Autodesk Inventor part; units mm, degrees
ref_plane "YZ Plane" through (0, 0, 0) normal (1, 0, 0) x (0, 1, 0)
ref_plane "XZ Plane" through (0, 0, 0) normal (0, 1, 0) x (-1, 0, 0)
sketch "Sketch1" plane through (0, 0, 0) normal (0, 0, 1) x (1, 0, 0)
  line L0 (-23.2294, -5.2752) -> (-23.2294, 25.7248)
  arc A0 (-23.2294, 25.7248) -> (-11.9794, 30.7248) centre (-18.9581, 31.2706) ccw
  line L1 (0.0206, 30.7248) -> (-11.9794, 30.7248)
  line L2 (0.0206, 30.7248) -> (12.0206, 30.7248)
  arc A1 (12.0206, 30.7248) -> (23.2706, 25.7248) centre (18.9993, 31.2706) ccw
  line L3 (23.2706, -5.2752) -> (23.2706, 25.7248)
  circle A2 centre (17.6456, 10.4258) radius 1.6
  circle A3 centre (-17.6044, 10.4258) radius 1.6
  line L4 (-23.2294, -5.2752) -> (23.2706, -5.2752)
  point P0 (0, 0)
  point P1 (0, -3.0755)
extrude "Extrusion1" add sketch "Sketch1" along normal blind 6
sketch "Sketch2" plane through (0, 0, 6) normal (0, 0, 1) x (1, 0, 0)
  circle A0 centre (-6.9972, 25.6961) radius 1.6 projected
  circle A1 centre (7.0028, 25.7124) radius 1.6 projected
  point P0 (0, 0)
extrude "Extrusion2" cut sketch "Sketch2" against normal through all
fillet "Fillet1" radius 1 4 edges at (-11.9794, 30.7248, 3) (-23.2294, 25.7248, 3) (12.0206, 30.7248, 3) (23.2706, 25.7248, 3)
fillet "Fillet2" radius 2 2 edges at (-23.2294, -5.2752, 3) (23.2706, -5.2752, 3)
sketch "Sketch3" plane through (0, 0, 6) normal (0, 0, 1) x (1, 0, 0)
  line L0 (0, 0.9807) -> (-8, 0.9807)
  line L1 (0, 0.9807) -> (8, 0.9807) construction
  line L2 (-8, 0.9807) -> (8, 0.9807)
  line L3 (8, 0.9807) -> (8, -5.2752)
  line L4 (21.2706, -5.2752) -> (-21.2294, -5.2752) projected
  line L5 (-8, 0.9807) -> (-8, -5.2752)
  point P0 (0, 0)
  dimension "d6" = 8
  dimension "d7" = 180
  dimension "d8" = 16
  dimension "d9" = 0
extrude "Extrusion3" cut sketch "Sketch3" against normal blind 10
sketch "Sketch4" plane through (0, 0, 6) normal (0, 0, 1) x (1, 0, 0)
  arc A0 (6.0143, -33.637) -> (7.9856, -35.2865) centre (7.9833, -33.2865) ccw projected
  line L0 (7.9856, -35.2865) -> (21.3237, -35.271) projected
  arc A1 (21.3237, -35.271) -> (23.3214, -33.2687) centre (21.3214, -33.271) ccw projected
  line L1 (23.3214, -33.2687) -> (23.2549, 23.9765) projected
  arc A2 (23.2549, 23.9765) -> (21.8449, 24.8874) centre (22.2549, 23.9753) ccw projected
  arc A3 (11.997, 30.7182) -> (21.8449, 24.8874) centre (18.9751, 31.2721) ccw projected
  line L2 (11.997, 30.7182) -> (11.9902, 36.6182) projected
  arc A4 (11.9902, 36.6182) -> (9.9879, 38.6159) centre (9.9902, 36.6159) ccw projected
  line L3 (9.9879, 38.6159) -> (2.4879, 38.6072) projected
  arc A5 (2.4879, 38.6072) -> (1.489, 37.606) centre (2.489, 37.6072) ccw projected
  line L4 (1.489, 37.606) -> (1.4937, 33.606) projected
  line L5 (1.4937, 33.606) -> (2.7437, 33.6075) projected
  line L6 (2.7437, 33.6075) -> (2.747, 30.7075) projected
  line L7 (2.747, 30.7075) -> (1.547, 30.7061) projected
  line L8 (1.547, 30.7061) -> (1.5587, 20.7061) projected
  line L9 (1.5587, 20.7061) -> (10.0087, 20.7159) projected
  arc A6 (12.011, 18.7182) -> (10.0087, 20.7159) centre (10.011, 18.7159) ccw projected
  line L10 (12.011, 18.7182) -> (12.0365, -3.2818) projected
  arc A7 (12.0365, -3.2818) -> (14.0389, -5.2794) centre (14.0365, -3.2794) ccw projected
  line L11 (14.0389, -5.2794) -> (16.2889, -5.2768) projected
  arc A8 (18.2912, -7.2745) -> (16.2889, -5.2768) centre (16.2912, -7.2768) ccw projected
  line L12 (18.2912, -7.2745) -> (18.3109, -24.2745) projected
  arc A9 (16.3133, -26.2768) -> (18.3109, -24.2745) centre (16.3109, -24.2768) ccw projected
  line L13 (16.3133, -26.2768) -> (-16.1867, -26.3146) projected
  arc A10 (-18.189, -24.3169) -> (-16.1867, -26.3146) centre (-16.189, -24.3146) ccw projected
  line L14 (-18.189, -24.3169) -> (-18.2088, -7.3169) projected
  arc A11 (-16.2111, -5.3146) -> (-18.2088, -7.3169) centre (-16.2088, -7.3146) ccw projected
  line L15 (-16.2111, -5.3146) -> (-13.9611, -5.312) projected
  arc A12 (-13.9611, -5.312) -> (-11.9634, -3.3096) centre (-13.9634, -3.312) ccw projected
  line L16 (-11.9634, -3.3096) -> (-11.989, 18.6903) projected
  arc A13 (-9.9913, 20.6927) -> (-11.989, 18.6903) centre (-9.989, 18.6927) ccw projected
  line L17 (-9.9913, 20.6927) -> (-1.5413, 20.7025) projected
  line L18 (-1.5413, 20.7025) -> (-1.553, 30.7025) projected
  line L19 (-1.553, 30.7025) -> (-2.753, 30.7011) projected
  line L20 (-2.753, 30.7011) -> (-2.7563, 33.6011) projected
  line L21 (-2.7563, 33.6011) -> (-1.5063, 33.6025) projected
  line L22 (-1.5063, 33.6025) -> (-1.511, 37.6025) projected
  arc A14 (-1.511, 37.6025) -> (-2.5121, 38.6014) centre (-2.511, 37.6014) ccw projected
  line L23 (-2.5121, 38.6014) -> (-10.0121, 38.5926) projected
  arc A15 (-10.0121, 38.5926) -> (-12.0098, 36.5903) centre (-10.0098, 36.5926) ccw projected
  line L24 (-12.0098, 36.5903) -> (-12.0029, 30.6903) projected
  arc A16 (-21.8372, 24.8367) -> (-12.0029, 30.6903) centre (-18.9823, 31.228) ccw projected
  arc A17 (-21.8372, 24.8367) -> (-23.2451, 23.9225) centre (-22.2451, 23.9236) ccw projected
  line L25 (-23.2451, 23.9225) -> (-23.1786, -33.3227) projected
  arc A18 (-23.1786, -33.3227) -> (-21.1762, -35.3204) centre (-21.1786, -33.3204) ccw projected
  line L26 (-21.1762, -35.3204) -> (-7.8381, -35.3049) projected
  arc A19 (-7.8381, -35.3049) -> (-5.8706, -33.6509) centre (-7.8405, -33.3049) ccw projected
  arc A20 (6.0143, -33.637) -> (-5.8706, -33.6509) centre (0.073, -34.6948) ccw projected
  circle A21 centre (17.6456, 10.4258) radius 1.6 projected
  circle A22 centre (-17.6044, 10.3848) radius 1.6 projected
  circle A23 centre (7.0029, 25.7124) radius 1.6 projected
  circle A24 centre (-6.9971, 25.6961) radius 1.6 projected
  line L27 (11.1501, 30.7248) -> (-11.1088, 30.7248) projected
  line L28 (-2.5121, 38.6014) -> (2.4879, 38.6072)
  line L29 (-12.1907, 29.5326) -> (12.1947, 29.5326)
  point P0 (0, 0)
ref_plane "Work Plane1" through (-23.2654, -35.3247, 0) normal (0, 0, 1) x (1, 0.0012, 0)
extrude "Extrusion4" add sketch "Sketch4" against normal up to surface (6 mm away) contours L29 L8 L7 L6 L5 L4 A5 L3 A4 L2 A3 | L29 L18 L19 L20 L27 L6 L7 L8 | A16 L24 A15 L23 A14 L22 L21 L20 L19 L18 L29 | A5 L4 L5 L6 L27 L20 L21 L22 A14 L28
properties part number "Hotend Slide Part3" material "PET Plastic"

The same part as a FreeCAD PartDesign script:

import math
import FreeCAD as App
import Part
import Sketcher

V = App.Vector
Q = App.Units.Quantity


def edges_at(feature, points):
    """Names of the edges that pass closest to the given points."""
    edges = feature.Shape.Edges
    near = lambda p: min(range(len(edges)), key=lambda i: edges[i].distToShape(Part.Vertex(*p))[0])
    return sorted({f"Edge{near(p) + 1}" for p in points})

doc = App.newDocument("Part")
params = doc.addObject("Spreadsheet::Sheet", "Params")
for row, (alias, value) in enumerate([
    ("sketch1_radius", "7 mm"),
    ("sketch1_diameter", "3.2 mm"),
    ("sketch1_width", "24 mm"),
    ("sketch1_height", "31 mm"),
    ("sketch1_width2", "46.5 mm"),
    ("pad1_length", "6 mm"),
    ("sketch2_diameter", "3.2 mm"),
    ("fillet_radius", "1 mm"),
    ("fillet2_radius", "2 mm"),
    ("sketch3_width", "16 mm"),
    ("pocket2_length", "10 mm"),
    ("sketch4_radius", "7 mm"),
    ("sketch4_radius2", "2 mm"),
    ("sketch4_length", "5.9 mm"),
    ("sketch4_length2", "12.5 mm"),
    ("pad2_length", "6 mm"),
], start=1):
    params.set(f"A{row}", alias)
    params.set(f"B{row}", "=" + value)
    params.setAlias(f"B{row}", alias)

body = doc.addObject("PartDesign::Body", "Body")

sketch1 = doc.addObject("Sketcher::SketchObject", "Sketch")
body.addObject(sketch1)
sketch1.AttachmentSupport = (doc.XY_Plane, [""])
sketch1.MapMode = "FlatFace"
sketch1.addGeometry([
    Part.LineSegment(V(-23.2, 25.7, 0), V(-23.2, -5.3, 0)),
    Part.LineSegment(V(-23.2, -5.3, 0), V(23.3, -5.3, 0)),
    Part.LineSegment(V(23.3, -5.3, 0), V(23.3, 25.7, 0)),
    Part.ArcOfCircle(Part.Circle(V(19, 31.3, 0), V(0, 0, 1), 7), math.radians(-176), math.radians(-52)),
    Part.LineSegment(V(12, 30.7, 0), V(-12, 30.7, 0)),
    Part.ArcOfCircle(Part.Circle(V(-19, 31.3, 0), V(0, 0, 1), 7), math.radians(-128), math.radians(-4)),
    Part.Circle(V(-17.6, 10.4, 0), V(0, 0, 1), 1.6),
    Part.Circle(V(17.6, 10.4, 0), V(0, 0, 1), 1.6),
], False)
sketch1.addConstraint([
    Sketcher.Constraint("Coincident", 0, 2, 1, 1),
    Sketcher.Constraint("Coincident", 1, 2, 2, 1),
    Sketcher.Constraint("Coincident", 2, 2, 3, 2),
    Sketcher.Constraint("Coincident", 3, 1, 4, 1),
    Sketcher.Constraint("Coincident", 4, 2, 5, 2),
    Sketcher.Constraint("Coincident", 5, 1, 0, 1),
    Sketcher.Constraint("Vertical", 0),
    Sketcher.Constraint("Horizontal", 1),
    Sketcher.Constraint("Vertical", 2),
    Sketcher.Constraint("Horizontal", 4),
    Sketcher.Constraint("Equal", 3, 5),
    Sketcher.Constraint("Equal", 6, 7),
    Sketcher.Constraint("Horizontal", 3, 3, 5, 3),
    Sketcher.Constraint("Horizontal", 6, 3, 7, 3),
    Sketcher.Constraint("Horizontal", 2, 2, 5, 1),
    Sketcher.Constraint("Radius", 3, Q("7 mm")),
    Sketcher.Constraint("Diameter", 6, Q("3.2 mm")),
    Sketcher.Constraint("DistanceX", 4, 2, 4, 1, Q("24 mm")),
    Sketcher.Constraint("DistanceY", 0, 2, 0, 1, Q("31 mm")),
    Sketcher.Constraint("DistanceX", 1, 1, 1, 2, Q("46.5 mm")),
    Sketcher.Constraint("DistanceY", 2, 2, 3, 1, Q("5 mm")),
    Sketcher.Constraint("DistanceX", 6, 3, 7, 3, Q("35.25 mm")),
    Sketcher.Constraint("DistanceX", 5, 3, -1, 1, Q("18.958 mm")),
    Sketcher.Constraint("DistanceX", 0, 2, 6, 3, Q("5.625 mm")),
    Sketcher.Constraint("DistanceY", 0, 2, 6, 3, Q("15.701 mm")),
    Sketcher.Constraint("DistanceY", -1, 1, 3, 3, Q("31.2706 mm")),
])
sketch1.setExpression("Constraints[15]", "Params.sketch1_radius")
sketch1.setExpression("Constraints[16]", "Params.sketch1_diameter")
sketch1.setExpression("Constraints[17]", "Params.sketch1_width")
sketch1.setExpression("Constraints[18]", "Params.sketch1_height")
sketch1.setExpression("Constraints[19]", "Params.sketch1_width2")
pad1 = doc.addObject("PartDesign::Pad", "Pad")
body.addObject(pad1)
pad1.Profile = sketch1
pad1.setExpression("Length", "Params.pad1_length")

sketch2 = doc.addObject("Sketcher::SketchObject", "Sketch001")
body.addObject(sketch2)
sketch2.AttachmentSupport = (doc.XY_Plane, [""])
sketch2.MapMode = "FlatFace"
sketch2.AttachmentOffset = App.Placement(V(0, 0, 6), App.Rotation())
sketch2.addGeometry([
    Part.Circle(V(-7, 25.7, 0), V(0, 0, 1), 1.6),
    Part.Circle(V(7, 25.7, 0), V(0, 0, 1), 1.6),
], False)
sketch2.addConstraint([
    Sketcher.Constraint("Equal", 0, 1),
    Sketcher.Constraint("Diameter", 0, Q("3.2 mm")),
    Sketcher.Constraint("DistanceX", 0, 3, 1, 3, Q("14 mm")),
    Sketcher.Constraint("DistanceY", -1, 1, 0, 3, Q("25.696 mm")),
    Sketcher.Constraint("DistanceX", 0, 3, -1, 1, Q("6.9972 mm")),
    Sketcher.Constraint("DistanceY", -1, 1, 1, 3, Q("25.7124 mm")),
])
sketch2.setExpression("Constraints[1]", "Params.sketch2_diameter")
pocket1 = doc.addObject("PartDesign::Pocket", "Pocket")
body.addObject(pocket1)
pocket1.Profile = sketch2
pocket1.Type = "ThroughAll"
doc.recompute()

fillet = doc.addObject("PartDesign::Fillet", "Fillet")
body.addObject(fillet)
fillet.Base = (pocket1, edges_at(pocket1, [
    (-11.979, 30.725, 3),
    (-23.229, 25.725, 3),
    (12.021, 30.725, 3),
    (23.271, 25.725, 3),
]))
fillet.setExpression("Radius", "Params.fillet_radius")
doc.recompute()

fillet2 = doc.addObject("PartDesign::Fillet", "Fillet001")
body.addObject(fillet2)
fillet2.Base = (fillet, edges_at(fillet, [(-23.229, -5.275, 3), (23.271, -5.275, 3)]))
fillet2.setExpression("Radius", "Params.fillet2_radius")

sketch3 = doc.addObject("Sketcher::SketchObject", "Sketch002")
body.addObject(sketch3)
sketch3.AttachmentSupport = (doc.XY_Plane, [""])
sketch3.MapMode = "FlatFace"
sketch3.AttachmentOffset = App.Placement(V(0, 0, 6), App.Rotation())
sketch3.addGeometry([
    Part.LineSegment(V(8, 1, 0), V(-8, 1, 0)),
    Part.LineSegment(V(-8, 1, 0), V(-8, -5, 0)),
    Part.LineSegment(V(-8, -5, 0), V(8, -5, 0)),
    Part.LineSegment(V(8, -5, 0), V(8, 1, 0)),
], False)
sketch3.addConstraint([
    Sketcher.Constraint("Coincident", 0, 2, 1, 1),
    Sketcher.Constraint("Coincident", 1, 2, 2, 1),
    Sketcher.Constraint("Coincident", 2, 2, 3, 1),
    Sketcher.Constraint("Coincident", 3, 2, 0, 1),
    Sketcher.Constraint("Horizontal", 0),
    Sketcher.Constraint("Vertical", 1),
    Sketcher.Constraint("Horizontal", 2),
    Sketcher.Constraint("Vertical", 3),
    Sketcher.Constraint("DistanceX", 0, 2, 0, 1, Q("16 mm")),
    Sketcher.Constraint("DistanceX", 0, 2, -1, 1, Q("8 mm")),
    Sketcher.Constraint("DistanceY", 1, 2, 1, 1, Q("6.256 mm")),
    Sketcher.Constraint("DistanceY", -1, 1, 0, 2, Q("0.9807 mm")),
])
sketch3.setExpression("Constraints[8]", "Params.sketch3_width")
pocket2 = doc.addObject("PartDesign::Pocket", "Pocket001")
body.addObject(pocket2)
pocket2.Profile = sketch3
pocket2.setExpression("Length", "Params.pocket2_length")

sketch4 = doc.addObject("Sketcher::SketchObject", "Sketch003")
body.addObject(sketch4)
sketch4.AttachmentSupport = (doc.XY_Plane, [""])
sketch4.MapMode = "FlatFace"
sketch4.AttachmentOffset = App.Placement(V(0, 0, 6), App.Rotation())
sketch4.addGeometry([
    Part.ArcOfCircle(Part.Circle(V(19, 31.3, 0), V(0, 0, 1), 7), math.radians(-175.46), math.radians(-165.61)),
    Part.LineSegment(V(12, 30.7, 0), V(12, 36.6, 0)),
    Part.ArcOfCircle(Part.Circle(V(10, 36.6, 0), V(0, 0, 1), 2), math.radians(0), math.radians(90)),
    Part.LineSegment(V(10, 38.6, 0), V(-2.5, 38.6, 0)),
    Part.LineSegment(V(-2.5, 38.6, 0), V(-10, 38.6, 0)),
    Part.ArcOfCircle(Part.Circle(V(-10, 36.6, 0), V(0, 0, 1), 2), math.radians(90), math.radians(180)),
    Part.LineSegment(V(-12, 36.6, 0), V(-12, 30.7, 0)),
    Part.ArcOfCircle(Part.Circle(V(-19, 31.2, 0), V(0, 0, 1), 7), math.radians(-14.02), math.radians(-4.41)),
    Part.LineSegment(V(-12.2, 29.5, 0), V(12.2, 29.5, 0)),
], False)
sketch4.addConstraint([
    Sketcher.Constraint("Coincident", 0, 1, 1, 1),
    Sketcher.Constraint("Tangent", 1, 2, 2, 1),
    Sketcher.Constraint("Tangent", 2, 2, 3, 1),
    Sketcher.Constraint("Coincident", 3, 2, 4, 1),
    Sketcher.Constraint("Tangent", 4, 2, 5, 1),
    Sketcher.Constraint("Tangent", 5, 2, 6, 1),
    Sketcher.Constraint("Coincident", 6, 2, 7, 2),
    Sketcher.Constraint("Coincident", 7, 1, 8, 1),
    Sketcher.Constraint("Coincident", 8, 2, 0, 2),
    Sketcher.Constraint("Horizontal", 8),
    Sketcher.Constraint("Equal", 2, 5),
    Sketcher.Constraint("Equal", 0, 7),
    Sketcher.Constraint("Perpendicular", 1, 3),
    Sketcher.Constraint("Parallel", 3, 4),
    Sketcher.Constraint("Perpendicular", 4, 6),
    Sketcher.Constraint("Equal", 1, 6),
    Sketcher.Constraint("Radius", 0, Q("7 mm")),
    Sketcher.Constraint("Radius", 2, Q("2 mm")),
    Sketcher.Constraint("DistanceX", 5, 3, 2, 3, Q("20 mm")),
    Sketcher.Constraint("Distance", 1, Q("5.9 mm")),
    Sketcher.Constraint("Distance", 3, Q("12.5 mm")),
    Sketcher.Constraint("DistanceY", 7, 1, 5, 3, Q("7.06 mm")),
    Sketcher.Constraint("DistanceX", 8, 1, 8, 2, Q("24.3854 mm")),
    Sketcher.Constraint("DistanceX", -1, 1, 0, 3, Q("18.975 mm")),
    Sketcher.Constraint("DistanceY", -1, 1, 0, 3, Q("31.272 mm")),
    Sketcher.Constraint("DistanceY", -1, 1, 2, 3, Q("36.616 mm")),
    Sketcher.Constraint("DistanceY", -1, 1, 7, 3, Q("31.228 mm")),
])
sketch4.setExpression("Constraints[16]", "Params.sketch4_radius")
sketch4.setExpression("Constraints[17]", "Params.sketch4_radius2")
sketch4.setExpression("Constraints[19]", "Params.sketch4_length")
sketch4.setExpression("Constraints[20]", "Params.sketch4_length2")
pad2 = doc.addObject("PartDesign::Pad", "Pad001")
body.addObject(pad2)
pad2.Profile = sketch4
pad2.setExpression("Length", "Params.pad2_length")
pad2.Reversed = True

doc.recompute()
